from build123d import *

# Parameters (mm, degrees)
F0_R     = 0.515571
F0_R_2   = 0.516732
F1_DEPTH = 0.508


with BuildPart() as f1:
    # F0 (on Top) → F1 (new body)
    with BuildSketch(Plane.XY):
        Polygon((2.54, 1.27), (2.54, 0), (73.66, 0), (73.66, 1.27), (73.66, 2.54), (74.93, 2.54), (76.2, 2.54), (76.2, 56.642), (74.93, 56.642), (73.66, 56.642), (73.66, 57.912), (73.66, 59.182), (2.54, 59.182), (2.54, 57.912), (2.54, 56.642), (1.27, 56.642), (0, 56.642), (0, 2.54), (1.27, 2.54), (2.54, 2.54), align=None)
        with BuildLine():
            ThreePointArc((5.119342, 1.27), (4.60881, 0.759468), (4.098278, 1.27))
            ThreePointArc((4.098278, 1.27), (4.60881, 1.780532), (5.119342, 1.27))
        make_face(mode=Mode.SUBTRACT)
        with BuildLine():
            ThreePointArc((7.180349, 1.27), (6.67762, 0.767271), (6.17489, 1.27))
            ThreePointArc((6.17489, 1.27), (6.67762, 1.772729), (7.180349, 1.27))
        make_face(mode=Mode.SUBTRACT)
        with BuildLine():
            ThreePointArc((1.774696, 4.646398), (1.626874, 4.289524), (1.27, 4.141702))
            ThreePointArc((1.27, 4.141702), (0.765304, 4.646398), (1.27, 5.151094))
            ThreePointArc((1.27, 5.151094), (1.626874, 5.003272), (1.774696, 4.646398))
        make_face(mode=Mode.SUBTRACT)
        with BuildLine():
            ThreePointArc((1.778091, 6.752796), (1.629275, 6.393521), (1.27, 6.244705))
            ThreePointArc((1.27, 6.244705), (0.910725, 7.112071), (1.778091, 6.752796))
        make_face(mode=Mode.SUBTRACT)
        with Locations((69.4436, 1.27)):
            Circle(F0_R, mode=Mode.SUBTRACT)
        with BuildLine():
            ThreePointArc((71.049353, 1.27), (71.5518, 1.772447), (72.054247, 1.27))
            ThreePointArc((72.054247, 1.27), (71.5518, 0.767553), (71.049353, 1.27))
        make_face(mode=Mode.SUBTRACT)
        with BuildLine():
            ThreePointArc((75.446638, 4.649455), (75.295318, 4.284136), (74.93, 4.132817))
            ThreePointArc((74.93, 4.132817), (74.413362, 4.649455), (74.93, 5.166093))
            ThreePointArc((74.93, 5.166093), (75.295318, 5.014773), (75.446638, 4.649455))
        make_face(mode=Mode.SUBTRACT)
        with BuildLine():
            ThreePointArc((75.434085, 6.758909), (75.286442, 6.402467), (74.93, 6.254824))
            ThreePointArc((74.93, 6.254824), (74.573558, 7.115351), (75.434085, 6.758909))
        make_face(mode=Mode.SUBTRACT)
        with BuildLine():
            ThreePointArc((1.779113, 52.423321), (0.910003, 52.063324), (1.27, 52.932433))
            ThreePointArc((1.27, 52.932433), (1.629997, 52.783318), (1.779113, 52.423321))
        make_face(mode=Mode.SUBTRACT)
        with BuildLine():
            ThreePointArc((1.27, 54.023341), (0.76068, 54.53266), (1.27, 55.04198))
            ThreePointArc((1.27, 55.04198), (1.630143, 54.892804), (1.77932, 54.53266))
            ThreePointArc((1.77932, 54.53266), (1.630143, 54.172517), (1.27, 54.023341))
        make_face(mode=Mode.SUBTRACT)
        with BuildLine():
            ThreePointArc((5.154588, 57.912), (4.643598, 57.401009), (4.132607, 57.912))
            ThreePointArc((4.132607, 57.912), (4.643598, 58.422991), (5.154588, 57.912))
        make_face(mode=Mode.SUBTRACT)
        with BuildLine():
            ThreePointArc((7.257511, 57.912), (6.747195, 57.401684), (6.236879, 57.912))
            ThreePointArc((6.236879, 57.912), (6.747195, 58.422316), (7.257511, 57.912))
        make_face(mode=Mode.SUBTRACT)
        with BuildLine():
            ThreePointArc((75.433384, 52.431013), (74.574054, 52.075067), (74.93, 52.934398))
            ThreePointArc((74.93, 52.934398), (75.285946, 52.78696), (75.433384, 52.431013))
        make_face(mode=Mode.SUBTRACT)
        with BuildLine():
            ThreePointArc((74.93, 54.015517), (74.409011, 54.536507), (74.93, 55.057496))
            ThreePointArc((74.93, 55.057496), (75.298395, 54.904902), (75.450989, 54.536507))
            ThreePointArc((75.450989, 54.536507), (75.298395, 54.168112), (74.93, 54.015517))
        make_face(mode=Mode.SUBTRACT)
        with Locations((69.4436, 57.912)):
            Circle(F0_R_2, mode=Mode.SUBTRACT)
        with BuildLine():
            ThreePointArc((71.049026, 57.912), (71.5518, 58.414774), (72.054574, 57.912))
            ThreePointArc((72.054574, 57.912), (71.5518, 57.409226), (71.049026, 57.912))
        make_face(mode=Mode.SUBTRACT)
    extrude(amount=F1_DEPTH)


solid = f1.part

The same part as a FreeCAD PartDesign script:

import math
import FreeCAD as App
import Part
import Sketcher

V = App.Vector
Q = App.Units.Quantity


def add_polygon(sketch, points):
    """Adds a closed chain of lines whose ends are joined by coincident constraints."""
    first, n = sketch.GeometryCount, len(points)
    for a, b in zip(points, points[1:] + points[:1]):
        sketch.addGeometry(Part.LineSegment(App.Vector(*a, 0), App.Vector(*b, 0)), False)
    for i in range(n):
        sketch.addConstraint(Sketcher.Constraint("Coincident", first + i, 2, first + (i + 1) % n, 1))

doc = App.newDocument("Part")
body = doc.addObject("PartDesign::Body", "Body")

sketch1 = body.newObject("Sketcher::SketchObject", "Sketch")
sketch1.AttachmentSupport = (doc.getObject("XY_Plane"), [""])
sketch1.MapMode = "FlatFace"
add_polygon(sketch1, [(2.5, 0), (73.7, 0), (73.7, 2.5), (76.2, 2.5), (76.2, 56.6), (73.7, 56.6), (73.7, 59.2), (2.5, 59.2), (2.5, 56.6), (0, 56.6), (0, 2.5), (2.5, 2.5)])
sketch1.addGeometry(Part.Circle(V(4.6, 1.3, 0), V(0, 0, 1), 0.5), False)
sketch1.addGeometry(Part.ArcOfCircle(Part.Circle(V(6.7, 1.3, 0), V(0, 0, 1), 0.5), math.radians(0), math.radians(180)), False)
sketch1.addGeometry(Part.ArcOfCircle(Part.Circle(V(6.7, 1.3, 0), V(0, 0, 1), 0.5), math.radians(-180), math.radians(0)), False)
sketch1.addGeometry(Part.ArcOfCircle(Part.Circle(V(1.3, 4.6, 0), V(0, 0, 1), 0.5), math.radians(0), math.radians(90)), False)
sketch1.addGeometry(Part.ArcOfCircle(Part.Circle(V(1.3, 4.6, 0), V(0, 0, 1), 0.5), math.radians(-90), math.radians(0)), False)
sketch1.addGeometry(Part.ArcOfCircle(Part.Circle(V(1.3, 4.6, 0), V(0, 0, 1), 0.5), math.radians(90), math.radians(270)), False)
sketch1.addGeometry(Part.ArcOfCircle(Part.Circle(V(1.3, 6.8, 0), V(0, 0, 1), 0.5), math.radians(0), math.radians(270)), False)
sketch1.addGeometry(Part.ArcOfCircle(Part.Circle(V(1.3, 6.8, 0), V(0, 0, 1), 0.5), math.radians(-90), math.radians(0)), False)
sketch1.addGeometry(Part.Circle(V(69.4, 1.3, 0), V(0, 0, 1), 0.5), False)
sketch1.addGeometry(Part.Circle(V(71.6, 1.3, 0), V(0, 0, 1), 0.5), False)
sketch1.addGeometry(Part.ArcOfCircle(Part.Circle(V(74.9, 4.6, 0), V(0, 0, 1), 0.5), math.radians(0), math.radians(90)), False)
sketch1.addGeometry(Part.ArcOfCircle(Part.Circle(V(74.9, 4.6, 0), V(0, 0, 1), 0.5), math.radians(-90), math.radians(0)), False)
sketch1.addGeometry(Part.ArcOfCircle(Part.Circle(V(74.9, 4.6, 0), V(0, 0, 1), 0.5), math.radians(90), math.radians(270)), False)
sketch1.addGeometry(Part.ArcOfCircle(Part.Circle(V(74.9, 6.8, 0), V(0, 0, 1), 0.5), math.radians(0), math.radians(270)), False)
sketch1.addGeometry(Part.ArcOfCircle(Part.Circle(V(74.9, 6.8, 0), V(0, 0, 1), 0.5), math.radians(-90), math.radians(0)), False)
sketch1.addGeometry(Part.ArcOfCircle(Part.Circle(V(1.3, 52.4, 0), V(0, 0, 1), 0.5), math.radians(0), math.radians(90)), False)
sketch1.addGeometry(Part.ArcOfCircle(Part.Circle(V(1.3, 52.4, 0), V(0, 0, 1), 0.5), math.radians(90), math.radians(360)), False)
sketch1.addGeometry(Part.ArcOfCircle(Part.Circle(V(1.3, 54.5, 0), V(0, 0, 1), 0.5), math.radians(-90), math.radians(0)), False)
sketch1.addGeometry(Part.ArcOfCircle(Part.Circle(V(1.3, 54.5, 0), V(0, 0, 1), 0.5), math.radians(90), math.radians(270)), False)
sketch1.addGeometry(Part.ArcOfCircle(Part.Circle(V(1.3, 54.5, 0), V(0, 0, 1), 0.5), math.radians(0), math.radians(90)), False)
sketch1.addGeometry(Part.ArcOfCircle(Part.Circle(V(4.6, 57.9, 0), V(0, 0, 1), 0.5), math.radians(0), math.radians(180)), False)
sketch1.addGeometry(Part.ArcOfCircle(Part.Circle(V(4.6, 57.9, 0), V(0, 0, 1), 0.5), math.radians(180), math.radians(360)), False)
sketch1.addGeometry(Part.Circle(V(6.7, 57.9, 0), V(0, 0, 1), 0.5), False)
sketch1.addGeometry(Part.ArcOfCircle(Part.Circle(V(74.9, 52.4, 0), V(0, 0, 1), 0.5), math.radians(0), math.radians(90)), False)
sketch1.addGeometry(Part.ArcOfCircle(Part.Circle(V(74.9, 52.4, 0), V(0, 0, 1), 0.5), math.radians(90), math.radians(360)), False)
sketch1.addGeometry(Part.ArcOfCircle(Part.Circle(V(74.9, 54.5, 0), V(0, 0, 1), 0.5), math.radians(-90), math.radians(0)), False)
sketch1.addGeometry(Part.ArcOfCircle(Part.Circle(V(74.9, 54.5, 0), V(0, 0, 1), 0.5), math.radians(90), math.radians(270)), False)
sketch1.addGeometry(Part.ArcOfCircle(Part.Circle(V(74.9, 54.5, 0), V(0, 0, 1), 0.5), math.radians(0), math.radians(90)), False)
sketch1.addGeometry(Part.Circle(V(69.4, 57.9, 0), V(0, 0, 1), 0.5), False)
sketch1.addGeometry(Part.Circle(V(71.6, 57.9, 0), V(0, 0, 1), 0.5), False)
sketch1.addConstraint([
    Sketcher.Constraint("Tangent", 13, 1, 14, 2),
    Sketcher.Constraint("Coincident", 14, 1, 13, 2),
    Sketcher.Constraint("Tangent", 15, 1, 16, 2),
    Sketcher.Constraint("Tangent", 16, 1, 17, 2),
    Sketcher.Constraint("Tangent", 17, 1, 15, 2),
    Sketcher.Constraint("Coincident", 18, 1, 19, 2),
    Sketcher.Constraint("Coincident", 19, 1, 18, 2),
    Sketcher.Constraint("Tangent", 22, 1, 23, 2),
    Sketcher.Constraint("Tangent", 23, 1, 24, 2),
    Sketcher.Constraint("Tangent", 24, 1, 22, 2),
    Sketcher.Constraint("Tangent", 25, 1, 26, 2),
    Sketcher.Constraint("Coincident", 26, 1, 25, 2),
    Sketcher.Constraint("Tangent", 27, 1, 28, 2),
    Sketcher.Constraint("Coincident", 28, 1, 27, 2),
    Sketcher.Constraint("Tangent", 29, 1, 30, 2),
    Sketcher.Constraint("Tangent", 30, 1, 31, 2),
    Sketcher.Constraint("Coincident", 31, 1, 29, 2),
    Sketcher.Constraint("Tangent", 32, 1, 33, 2),
    Sketcher.Constraint("Coincident", 33, 1, 32, 2),
    Sketcher.Constraint("Tangent", 35, 1, 36, 2),
    Sketcher.Constraint("Coincident", 36, 1, 35, 2),
    Sketcher.Constraint("Coincident", 37, 1, 38, 2),
    Sketcher.Constraint("Tangent", 38, 1, 39, 2),
    Sketcher.Constraint("Tangent", 39, 1, 37, 2),
    Sketcher.Constraint("Horizontal", 0),
    Sketcher.Constraint("Vertical", 1),
    Sketcher.Constraint("Horizontal", 2),
    Sketcher.Constraint("Vertical", 3),
    Sketcher.Constraint("Horizontal", 4),
    Sketcher.Constraint("Vertical", 5),
    Sketcher.Constraint("Horizontal", 6),
    Sketcher.Constraint("Vertical", 7),
    Sketcher.Constraint("Horizontal", 8),
    Sketcher.Constraint("Vertical", 9),
    Sketcher.Constraint("Horizontal", 10),
    Sketcher.Constraint("Vertical", 11),
    Sketcher.Constraint("Equal", 18, 19),
    Sketcher.Constraint("Equal", 29, 30),
    Sketcher.Constraint("Equal", 37, 38),
    Sketcher.Constraint("PointOnObject", 0, 2, -1),
    Sketcher.Constraint("PointOnObject", 8, 2, -2),
    Sketcher.Constraint("Horizontal", 12, 3, 13, 3),
    Sketcher.Constraint("Horizontal", 14, 3, 20, 3),
    Sketcher.Constraint("Horizontal", 20, 3, 21, 3),
    Sketcher.Constraint("Horizontal", 33, 3, 34, 3),
    Sketcher.Constraint("Horizontal", 34, 3, 40, 3),
    Sketcher.Constraint("Horizontal", 40, 3, 41, 3),
    Sketcher.Constraint("Horizontal", 4, 2, 7, 2),
    Sketcher.Constraint("Horizontal", 2, 2, 9, 2),
    Sketcher.Constraint("Horizontal", 21, 3, 13, 1),
    Sketcher.Constraint("Horizontal", 13, 1, 14, 1),
    Sketcher.Constraint("Horizontal", 17, 3, 15, 1),
    Sketcher.Constraint("Horizontal", 19, 3, 18, 1),
    Sketcher.Constraint("Horizontal", 24, 3, 22, 1),
    Sketcher.Constraint("Horizontal", 26, 3, 25, 1),
    Sketcher.Constraint("Horizontal", 28, 3, 27, 1),
    Sketcher.Constraint("Horizontal", 30, 3, 31, 1),
    Sketcher.Constraint("Horizontal", 41, 3, 32, 1),
    Sketcher.Constraint("Horizontal", 32, 1, 33, 1),
    Sketcher.Constraint("Horizontal", 36, 3, 35, 1),
    Sketcher.Constraint("Horizontal", 38, 3, 39, 1),
    Sketcher.Constraint("Vertical", 17, 3, 18, 3),
    Sketcher.Constraint("Vertical", 24, 3, 25, 3),
    Sketcher.Constraint("Vertical", 19, 3, 27, 3),
    Sketcher.Constraint("Vertical", 28, 3, 29, 3),
    Sketcher.Constraint("Vertical", 26, 3, 35, 3),
    Sketcher.Constraint("Vertical", 36, 3, 37, 3),
    Sketcher.Constraint("Vertical", 20, 3, 40, 3),
    Sketcher.Constraint("Vertical", 21, 3, 41, 3),
    Sketcher.Constraint("Vertical", 1, 2, 4, 2),
    Sketcher.Constraint("Vertical", 7, 2, 10, 2),
    Sketcher.Constraint("Vertical", 31, 3, 16, 1),
    Sketcher.Constraint("Vertical", 16, 1, 17, 1),
    Sketcher.Constraint("Vertical", 17, 1, 19, 1),
    Sketcher.Constraint("Vertical", 39, 3, 23, 1),
    Sketcher.Constraint("Vertical", 23, 1, 24, 1),
    Sketcher.Constraint("Vertical", 24, 1, 26, 1),
    Sketcher.Constraint("Vertical", 19, 1, 28, 1),
    Sketcher.Constraint("Vertical", 28, 1, 29, 1),
    Sketcher.Constraint("Vertical", 29, 1, 30, 1),
    Sketcher.Constraint("Vertical", 26, 1, 36, 1),
    Sketcher.Constraint("Vertical", 36, 1, 37, 1),
    Sketcher.Constraint("Vertical", 37, 1, 38, 1),
    Sketcher.Constraint("Equal", 4, 8),
    Sketcher.Constraint("Equal", 10, 1),
    Sketcher.Constraint("Equal", 1, 5),
    Sketcher.Constraint("DistanceX", 0, 1, 0, 2, Q("2.8 in")),
    Sketcher.Constraint("DistanceX", 2, 1, 2, 2, Q("0.1 in")),
    Sketcher.Constraint("DistanceY", 3, 1, 3, 2, Q("2.13 in")),
    Sketcher.Constraint("DistanceY", -1, 1, 12, 3, Q("0.05 in")),
    Sketcher.Constraint("DistanceX", -1, 1, 15, 3, Q("0.05 in")),
    Sketcher.Constraint("DistanceX", -1, 1, 22, 3, Q("2.95 in")),
    Sketcher.Constraint("DistanceY", -1, 1, 32, 3, Q("2.28 in")),
    Sketcher.Constraint("Diameter", 41, 1.005548),
    Sketcher.Constraint("DistanceX", -1, 1, 20, 3, Q("2.734 in")),
    Sketcher.Constraint("DistanceX", -1, 1, 21, 3, Q("2.817 in")),
    Sketcher.Constraint("Radius", 13, 0.50273),
    Sketcher.Constraint("Radius", 18, 0.508091),
    Sketcher.Constraint("Radius", 22, 0.516639),
    Sketcher.Constraint("Radius", 29, 0.50932),
    Sketcher.Constraint("Radius", 32, 0.510991),
    Sketcher.Constraint("Radius", 37, 0.52099),
    Sketcher.Constraint("Diameter", 12, 1.021064),
    Sketcher.Constraint("Diameter", 20, 1.031142),
    Sketcher.Constraint("Diameter", 21, 1.004894),
    Sketcher.Constraint("Diameter", 34, 1.020632),
    Sketcher.Constraint("Diameter", 40, 1.033464),
    Sketcher.Constraint("Radius", 15, 0.504696),
    Sketcher.Constraint("Radius", 25, 0.504085),
    Sketcher.Constraint("Radius", 27, 0.509112),
    Sketcher.Constraint("Radius", 35, 0.503385),
    Sketcher.Constraint("DistanceY", -1, 1, 15, 3, 4.646398),
    Sketcher.Constraint("DistanceX", -1, 1, 12, 3, 4.60881),
    Sketcher.Constraint("DistanceX", -1, 1, 13, 3, 6.677619),
    Sketcher.Constraint("DistanceY", -1, 1, 25, 3, 6.758909),
    Sketcher.Constraint("DistanceY", -1, 1, 27, 3, 52.423321),
    Sketcher.Constraint("DistanceY", -1, 1, 29, 3, 54.532661),
    Sketcher.Constraint("DistanceY", -1, 1, 18, 3, 6.752796),
    Sketcher.Constraint("DistanceY", -1, 1, 22, 3, 4.649454),
    Sketcher.Constraint("DistanceX", -1, 1, 32, 3, 4.643598),
    Sketcher.Constraint("DistanceX", -1, 1, 34, 3, 6.747195),
    Sketcher.Constraint("DistanceY", -1, 1, 35, 3, 52.431013),
    Sketcher.Constraint("DistanceY", -1, 1, 37, 3, 54.536507),
])
pad1 = body.newObject("PartDesign::Pad", "Pad")
pad1.Profile = sketch1
pad1.Length = Q("0.02 in")

doc.recompute()
